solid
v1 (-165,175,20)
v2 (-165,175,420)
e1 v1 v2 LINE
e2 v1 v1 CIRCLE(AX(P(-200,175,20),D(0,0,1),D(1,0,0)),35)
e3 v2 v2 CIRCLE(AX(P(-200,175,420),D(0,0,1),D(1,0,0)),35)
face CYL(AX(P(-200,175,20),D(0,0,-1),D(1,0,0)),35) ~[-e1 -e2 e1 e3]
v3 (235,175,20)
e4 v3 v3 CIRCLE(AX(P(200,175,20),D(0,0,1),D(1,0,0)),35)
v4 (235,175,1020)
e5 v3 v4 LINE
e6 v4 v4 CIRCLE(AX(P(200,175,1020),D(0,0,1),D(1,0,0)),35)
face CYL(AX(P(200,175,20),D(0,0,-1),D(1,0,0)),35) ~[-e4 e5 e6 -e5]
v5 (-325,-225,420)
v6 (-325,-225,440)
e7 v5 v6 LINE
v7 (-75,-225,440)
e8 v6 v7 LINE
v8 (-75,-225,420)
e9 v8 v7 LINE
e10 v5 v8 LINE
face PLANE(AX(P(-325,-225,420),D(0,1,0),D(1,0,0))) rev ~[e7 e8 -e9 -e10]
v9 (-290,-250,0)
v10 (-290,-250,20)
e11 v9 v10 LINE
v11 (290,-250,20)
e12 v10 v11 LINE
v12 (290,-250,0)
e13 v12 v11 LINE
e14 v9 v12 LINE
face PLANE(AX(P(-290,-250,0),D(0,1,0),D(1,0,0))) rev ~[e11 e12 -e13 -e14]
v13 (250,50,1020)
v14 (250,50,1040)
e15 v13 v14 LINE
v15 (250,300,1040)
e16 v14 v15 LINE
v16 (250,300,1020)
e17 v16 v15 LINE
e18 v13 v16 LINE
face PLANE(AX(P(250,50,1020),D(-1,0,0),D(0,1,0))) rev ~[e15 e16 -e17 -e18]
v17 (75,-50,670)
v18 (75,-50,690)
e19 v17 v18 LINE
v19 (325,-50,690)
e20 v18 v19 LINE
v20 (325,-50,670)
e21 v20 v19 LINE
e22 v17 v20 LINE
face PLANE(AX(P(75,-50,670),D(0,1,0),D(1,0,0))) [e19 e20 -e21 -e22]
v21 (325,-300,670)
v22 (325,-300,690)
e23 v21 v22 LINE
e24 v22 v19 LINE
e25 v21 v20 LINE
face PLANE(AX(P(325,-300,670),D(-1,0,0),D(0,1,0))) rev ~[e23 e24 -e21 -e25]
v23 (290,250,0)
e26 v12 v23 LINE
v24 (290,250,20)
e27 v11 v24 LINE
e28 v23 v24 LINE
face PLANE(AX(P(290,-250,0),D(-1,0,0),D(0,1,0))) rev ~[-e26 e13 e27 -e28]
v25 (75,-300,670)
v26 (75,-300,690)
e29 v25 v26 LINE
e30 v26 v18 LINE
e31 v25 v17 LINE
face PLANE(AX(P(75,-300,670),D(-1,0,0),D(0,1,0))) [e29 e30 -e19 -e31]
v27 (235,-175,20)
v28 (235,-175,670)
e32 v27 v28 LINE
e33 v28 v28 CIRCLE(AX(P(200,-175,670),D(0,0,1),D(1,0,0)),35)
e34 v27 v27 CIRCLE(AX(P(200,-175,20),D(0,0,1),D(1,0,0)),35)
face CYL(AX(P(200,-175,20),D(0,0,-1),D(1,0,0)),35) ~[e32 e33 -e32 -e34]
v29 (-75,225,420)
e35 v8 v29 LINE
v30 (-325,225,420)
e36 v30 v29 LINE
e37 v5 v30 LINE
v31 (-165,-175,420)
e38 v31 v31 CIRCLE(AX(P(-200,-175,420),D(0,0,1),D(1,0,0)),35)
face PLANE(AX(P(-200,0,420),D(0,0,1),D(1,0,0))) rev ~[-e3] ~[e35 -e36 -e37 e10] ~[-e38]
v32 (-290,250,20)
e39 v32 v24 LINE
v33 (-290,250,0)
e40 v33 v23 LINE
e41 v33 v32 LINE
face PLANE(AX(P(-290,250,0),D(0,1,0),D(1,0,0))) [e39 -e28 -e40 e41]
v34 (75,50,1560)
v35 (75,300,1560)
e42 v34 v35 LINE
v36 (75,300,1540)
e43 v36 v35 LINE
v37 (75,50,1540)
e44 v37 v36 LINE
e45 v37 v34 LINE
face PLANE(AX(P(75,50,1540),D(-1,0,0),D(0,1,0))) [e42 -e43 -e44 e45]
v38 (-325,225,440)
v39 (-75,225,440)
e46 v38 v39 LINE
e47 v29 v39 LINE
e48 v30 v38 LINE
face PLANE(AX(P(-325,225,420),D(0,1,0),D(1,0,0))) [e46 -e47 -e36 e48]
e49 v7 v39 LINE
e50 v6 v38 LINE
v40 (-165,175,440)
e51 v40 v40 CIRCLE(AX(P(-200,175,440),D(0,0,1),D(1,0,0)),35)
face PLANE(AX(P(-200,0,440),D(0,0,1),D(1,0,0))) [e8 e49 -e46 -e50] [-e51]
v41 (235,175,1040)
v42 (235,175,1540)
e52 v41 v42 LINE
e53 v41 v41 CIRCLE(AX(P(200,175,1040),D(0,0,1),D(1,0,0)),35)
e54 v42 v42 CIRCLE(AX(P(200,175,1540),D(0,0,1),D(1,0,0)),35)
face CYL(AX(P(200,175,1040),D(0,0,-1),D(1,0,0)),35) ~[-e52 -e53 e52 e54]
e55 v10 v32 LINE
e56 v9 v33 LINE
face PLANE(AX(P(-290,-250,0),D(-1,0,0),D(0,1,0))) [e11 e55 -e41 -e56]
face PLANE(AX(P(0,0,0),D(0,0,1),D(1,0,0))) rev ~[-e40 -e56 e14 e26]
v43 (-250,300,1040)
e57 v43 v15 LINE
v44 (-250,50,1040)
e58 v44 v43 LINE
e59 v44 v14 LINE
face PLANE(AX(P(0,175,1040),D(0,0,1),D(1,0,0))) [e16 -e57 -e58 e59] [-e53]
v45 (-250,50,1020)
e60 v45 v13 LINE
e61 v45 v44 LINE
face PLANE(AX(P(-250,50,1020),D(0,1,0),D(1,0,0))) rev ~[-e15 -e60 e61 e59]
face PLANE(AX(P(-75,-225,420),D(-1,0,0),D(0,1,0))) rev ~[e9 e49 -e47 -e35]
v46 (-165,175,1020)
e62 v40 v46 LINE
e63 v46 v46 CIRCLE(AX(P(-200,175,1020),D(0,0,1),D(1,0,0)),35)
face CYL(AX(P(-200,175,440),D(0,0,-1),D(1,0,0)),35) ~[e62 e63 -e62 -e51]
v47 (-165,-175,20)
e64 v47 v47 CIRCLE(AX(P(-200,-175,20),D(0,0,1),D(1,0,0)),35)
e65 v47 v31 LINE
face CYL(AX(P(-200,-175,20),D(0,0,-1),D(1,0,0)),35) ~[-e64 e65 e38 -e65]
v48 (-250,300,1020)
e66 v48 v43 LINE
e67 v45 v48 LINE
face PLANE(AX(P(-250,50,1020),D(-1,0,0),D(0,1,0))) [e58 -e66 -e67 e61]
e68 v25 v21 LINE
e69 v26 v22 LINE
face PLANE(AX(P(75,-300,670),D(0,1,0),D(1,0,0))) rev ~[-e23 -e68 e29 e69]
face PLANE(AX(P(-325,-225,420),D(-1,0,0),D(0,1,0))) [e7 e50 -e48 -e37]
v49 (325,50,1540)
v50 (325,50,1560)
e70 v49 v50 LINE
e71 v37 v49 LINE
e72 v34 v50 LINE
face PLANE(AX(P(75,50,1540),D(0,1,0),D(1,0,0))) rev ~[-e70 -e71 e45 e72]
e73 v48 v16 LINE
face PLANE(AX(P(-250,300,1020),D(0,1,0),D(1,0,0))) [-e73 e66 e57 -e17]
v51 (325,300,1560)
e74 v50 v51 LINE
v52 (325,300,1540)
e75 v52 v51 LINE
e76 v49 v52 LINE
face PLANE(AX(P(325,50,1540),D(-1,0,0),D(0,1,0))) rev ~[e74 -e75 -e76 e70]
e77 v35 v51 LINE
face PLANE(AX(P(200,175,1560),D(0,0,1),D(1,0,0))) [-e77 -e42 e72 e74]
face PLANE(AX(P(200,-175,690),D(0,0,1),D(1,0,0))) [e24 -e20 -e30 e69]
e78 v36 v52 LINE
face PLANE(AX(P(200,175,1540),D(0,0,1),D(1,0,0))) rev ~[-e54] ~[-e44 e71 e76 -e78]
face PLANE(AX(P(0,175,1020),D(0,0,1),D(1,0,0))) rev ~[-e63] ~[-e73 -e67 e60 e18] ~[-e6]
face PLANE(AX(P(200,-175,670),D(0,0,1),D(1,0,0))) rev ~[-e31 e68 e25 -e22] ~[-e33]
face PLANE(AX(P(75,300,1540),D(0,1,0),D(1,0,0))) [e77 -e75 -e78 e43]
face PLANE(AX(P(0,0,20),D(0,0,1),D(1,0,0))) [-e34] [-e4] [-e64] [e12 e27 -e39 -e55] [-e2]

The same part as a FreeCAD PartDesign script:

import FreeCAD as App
import Part
import Sketcher
from FreeCAD import Vector


def add_polygon(sketch, points):
    """Adds a closed chain of lines whose ends are joined by coincident constraints."""
    first, n = sketch.GeometryCount, len(points)
    for a, b in zip(points, points[1:] + points[:1]):
        sketch.addGeometry(Part.LineSegment(App.Vector(*a, 0), App.Vector(*b, 0)), False)
    for i in range(n):
        sketch.addConstraint(Sketcher.Constraint("Coincident", first + i, 2, first + (i + 1) % n, 1))

doc = App.newDocument("Part")
body = doc.addObject("PartDesign::Body", "Body")

sketch1 = body.newObject("Sketcher::SketchObject", "Sketch")
sketch1.AttachmentSupport = (doc.getObject("XY_Plane"), [""])
sketch1.MapMode = "FlatFace"
add_polygon(sketch1, [(-290, 250), (-290, -250), (290, -250), (290, 250)])
sketch1.addConstraint(Sketcher.Constraint("Vertical", 0))
sketch1.addConstraint(Sketcher.Constraint("Horizontal", 1))
sketch1.addConstraint(Sketcher.Constraint("Vertical", 2))
sketch1.addConstraint(Sketcher.Constraint("Horizontal", 3))
sketch1.addConstraint(Sketcher.Constraint("Symmetric", 0, 2, 2, 2, -1, 1))
sketch1.addConstraint(Sketcher.Constraint("DistanceX", 1, 1, 1, 2, 580.0))
sketch1.addConstraint(Sketcher.Constraint("DistanceY", 0, 2, 0, 1, 500.0))
pad1 = body.newObject("PartDesign::Pad", "Pad")
pad1.Profile = sketch1
pad1.Length = 20

sketch2 = body.newObject("Sketcher::SketchObject", "Sketch001")
sketch2.AttachmentSupport = (doc.getObject("XY_Plane"), [""])
sketch2.MapMode = "FlatFace"
sketch2.AttachmentOffset = App.Placement(Vector(0, 0, 20), App.Rotation())
sketch2.addGeometry(Part.Circle(Vector(-200, 175, 0), Vector(0, 0, 1), 35), False)
sketch2.addGeometry(Part.Circle(Vector(-200, -175, 0), Vector(0, 0, 1), 35), False)
sketch2.addConstraint(Sketcher.Constraint("Equal", 0, 1))
sketch2.addConstraint(Sketcher.Constraint("Symmetric", 0, 3, 1, 3, -1))
sketch2.addConstraint(Sketcher.Constraint("Diameter", 0, 70.0))
sketch2.addConstraint(Sketcher.Constraint("DistanceX", 0, 3, -1, 1, 200.0))
sketch2.addConstraint(Sketcher.Constraint("DistanceY", -1, 1, 0, 3, 175.0))
pad2 = body.newObject("PartDesign::Pad", "Pad001")
pad2.Profile = sketch2
pad2.Length = 400

sketch3 = body.newObject("Sketcher::SketchObject", "Sketch002")
sketch3.AttachmentSupport = (doc.getObject("XY_Plane"), [""])
sketch3.MapMode = "FlatFace"
sketch3.AttachmentOffset = App.Placement(Vector(0, 0, 420), App.Rotation())
add_polygon(sketch3, [(-325, 225), (-325, -225), (-75, -225), (-75, 225)])
sketch3.addConstraint(Sketcher.Constraint("Vertical", 0))
sketch3.addConstraint(Sketcher.Constraint("Horizontal", 1))
sketch3.addConstraint(Sketcher.Constraint("Vertical", 2))
sketch3.addConstraint(Sketcher.Constraint("Horizontal", 3))
sketch3.addConstraint(Sketcher.Constraint("DistanceX", 1, 1, 1, 2, 250.0))
sketch3.addConstraint(Sketcher.Constraint("DistanceY", 0, 2, 0, 1, 450.0))
sketch3.addConstraint(Sketcher.Constraint("DistanceX", 0, 2, -1, 1, 325.0))
sketch3.addConstraint(Sketcher.Constraint("DistanceY", 0, 2, -1, 1, 225.0))
pad3 = body.newObject("PartDesign::Pad", "Pad002")
pad3.Profile = sketch3
pad3.Length = 20

sketch4 = body.newObject("Sketcher::SketchObject", "Sketch003")
sketch4.AttachmentSupport = (doc.getObject("XY_Plane"), [""])
sketch4.MapMode = "FlatFace"
sketch4.AttachmentOffset = App.Placement(Vector(0, 0, 20), App.Rotation())
sketch4.addGeometry(Part.Circle(Vector(200, 175, 0), Vector(0, 0, 1), 35), False)
sketch4.addConstraint(Sketcher.Constraint("Diameter", 0, 70.0))
sketch4.addConstraint(Sketcher.Constraint("DistanceX", -1, 1, 0, 3, 200.0))
sketch4.addConstraint(Sketcher.Constraint("DistanceY", -1, 1, 0, 3, 175.0))
pad4 = body.newObject("PartDesign::Pad", "Pad003")
pad4.Profile = sketch4
pad4.Length = 1000

sketch5 = body.newObject("Sketcher::SketchObject", "Sketch004")
sketch5.AttachmentSupport = (doc.getObject("XY_Plane"), [""])
sketch5.MapMode = "FlatFace"
sketch5.AttachmentOffset = App.Placement(Vector(0, 0, 440), App.Rotation())
sketch5.addGeometry(Part.Circle(Vector(-200, 175, 0), Vector(0, 0, 1), 35), False)
sketch5.addConstraint(Sketcher.Constraint("Diameter", 0, 70.0))
sketch5.addConstraint(Sketcher.Constraint("DistanceX", 0, 3, -1, 1, 200.0))
sketch5.addConstraint(Sketcher.Constraint("DistanceY", -1, 1, 0, 3, 175.0))
pad5 = body.newObject("PartDesign::Pad", "Pad004")
pad5.Profile = sketch5
pad5.Length = 580

sketch6 = body.newObject("Sketcher::SketchObject", "Sketch005")
sketch6.AttachmentSupport = (doc.getObject("XY_Plane"), [""])
sketch6.MapMode = "FlatFace"
sketch6.AttachmentOffset = App.Placement(Vector(0, 0, 20), App.Rotation())
sketch6.addGeometry(Part.Circle(Vector(200, -175, 0), Vector(0, 0, 1), 35), False)
sketch6.addConstraint(Sketcher.Constraint("Diameter", 0, 70.0))
sketch6.addConstraint(Sketcher.Constraint("DistanceX", -1, 1, 0, 3, 200.0))
sketch6.addConstraint(Sketcher.Constraint("DistanceY", 0, 3, -1, 1, 175.0))
pad6 = body.newObject("PartDesign::Pad", "Pad005")
pad6.Profile = sketch6
pad6.Length = 650

sketch7 = body.newObject("Sketcher::SketchObject", "Sketch006")
sketch7.AttachmentSupport = (doc.getObject("XY_Plane"), [""])
sketch7.MapMode = "FlatFace"
sketch7.AttachmentOffset = App.Placement(Vector(0, 0, 670), App.Rotation())
add_polygon(sketch7, [(75, -50), (75, -300), (325, -300), (325, -50)])
sketch7.addConstraint(Sketcher.Constraint("Vertical", 0))
sketch7.addConstraint(Sketcher.Constraint("Horizontal", 1))
sketch7.addConstraint(Sketcher.Constraint("Vertical", 2))
sketch7.addConstraint(Sketcher.Constraint("Horizontal", 3))
sketch7.addConstraint(Sketcher.Constraint("Equal", 3, 0))
sketch7.addConstraint(Sketcher.Constraint("DistanceX", 1, 1, 1, 2, 250.0))
sketch7.addConstraint(Sketcher.Constraint("DistanceX", -1, 1, 0, 2, 75.0))
sketch7.addConstraint(Sketcher.Constraint("DistanceY", 0, 2, -1, 1, 300.0))
pad7 = body.newObject("PartDesign::Pad", "Pad006")
pad7.Profile = sketch7
pad7.Length = 20

sketch8 = body.newObject("Sketcher::SketchObject", "Sketch007")
sketch8.AttachmentSupport = (doc.getObject("XY_Plane"), [""])
sketch8.MapMode = "FlatFace"
sketch8.AttachmentOffset = App.Placement(Vector(0, 0, 1020), App.Rotation())
add_polygon(sketch8, [(-250, 300), (-250, 50), (250, 50), (250, 300)])
sketch8.addConstraint(Sketcher.Constraint("Vertical", 0))
sketch8.addConstraint(Sketcher.Constraint("Horizontal", 1))
sketch8.addConstraint(Sketcher.Constraint("Vertical", 2))
sketch8.addConstraint(Sketcher.Constraint("Horizontal", 3))
sketch8.addConstraint(Sketcher.Constraint("DistanceX", 1, 1, 1, 2, 500.0))
sketch8.addConstraint(Sketcher.Constraint("DistanceY", 0, 2, 0, 1, 250.0))
sketch8.addConstraint(Sketcher.Constraint("DistanceX", 0, 2, -1, 1, 250.0))
sketch8.addConstraint(Sketcher.Constraint("DistanceY", -1, 1, 0, 2, 50.0))
pad8 = body.newObject("PartDesign::Pad", "Pad007")
pad8.Profile = sketch8
pad8.Length = 20

sketch9 = body.newObject("Sketcher::SketchObject", "Sketch008")
sketch9.AttachmentSupport = (doc.getObject("XY_Plane"), [""])
sketch9.MapMode = "FlatFace"
sketch9.AttachmentOffset = App.Placement(Vector(0, 0, 1040), App.Rotation())
sketch9.addGeometry(Part.Circle(Vector(200, 175, 0), Vector(0, 0, 1), 35), False)
sketch9.addConstraint(Sketcher.Constraint("Diameter", 0, 70.0))
sketch9.addConstraint(Sketcher.Constraint("DistanceX", -1, 1, 0, 3, 200.0))
sketch9.addConstraint(Sketcher.Constraint("DistanceY", -1, 1, 0, 3, 175.0))
pad9 = body.newObject("PartDesign::Pad", "Pad008")
pad9.Profile = sketch9
pad9.Length = 500

sketch10 = body.newObject("Sketcher::SketchObject", "Sketch009")
sketch10.AttachmentSupport = (doc.getObject("XY_Plane"), [""])
sketch10.MapMode = "FlatFace"
sketch10.AttachmentOffset = App.Placement(Vector(0, 0, 1540), App.Rotation())
add_polygon(sketch10, [(75, 300), (75, 50), (325, 50), (325, 300)])
sketch10.addConstraint(Sketcher.Constraint("Vertical", 0))
sketch10.addConstraint(Sketcher.Constraint("Horizontal", 1))
sketch10.addConstraint(Sketcher.Constraint("Vertical", 2))
sketch10.addConstraint(Sketcher.Constraint("Horizontal", 3))
sketch10.addConstraint(Sketcher.Constraint("Equal", 3, 0))
sketch10.addConstraint(Sketcher.Constraint("DistanceX", 1, 1, 1, 2, 250.0))
sketch10.addConstraint(Sketcher.Constraint("DistanceX", -1, 1, 0, 2, 75.0))
sketch10.addConstraint(Sketcher.Constraint("DistanceY", -1, 1, 0, 2, 50.0))
pad10 = body.newObject("PartDesign::Pad", "Pad009")
pad10.Profile = sketch10
pad10.Length = 20

doc.recompute()
